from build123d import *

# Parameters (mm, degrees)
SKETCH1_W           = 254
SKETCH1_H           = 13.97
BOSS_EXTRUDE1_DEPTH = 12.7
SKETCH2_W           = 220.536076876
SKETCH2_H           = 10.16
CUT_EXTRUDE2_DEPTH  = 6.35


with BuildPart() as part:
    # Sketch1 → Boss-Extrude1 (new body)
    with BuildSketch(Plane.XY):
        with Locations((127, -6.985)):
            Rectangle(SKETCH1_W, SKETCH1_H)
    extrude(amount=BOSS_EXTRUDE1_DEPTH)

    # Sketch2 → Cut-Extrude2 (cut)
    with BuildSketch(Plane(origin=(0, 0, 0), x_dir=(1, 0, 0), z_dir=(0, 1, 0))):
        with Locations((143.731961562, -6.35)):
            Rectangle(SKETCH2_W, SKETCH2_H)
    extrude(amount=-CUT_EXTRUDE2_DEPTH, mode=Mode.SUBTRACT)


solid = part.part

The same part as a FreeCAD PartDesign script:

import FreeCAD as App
import Part
import Sketcher

V = App.Vector
Q = App.Units.Quantity


def add_polygon(sketch, points):
    """Adds a closed chain of lines whose ends are joined by coincident constraints."""
    first, n = sketch.GeometryCount, len(points)
    for a, b in zip(points, points[1:] + points[:1]):
        sketch.addGeometry(Part.LineSegment(App.Vector(*a, 0), App.Vector(*b, 0)), False)
    for i in range(n):
        sketch.addConstraint(Sketcher.Constraint("Coincident", first + i, 2, first + (i + 1) % n, 1))

doc = App.newDocument("Part")
body = doc.addObject("PartDesign::Body", "Body")

# Sketch on XY plane
sketch1 = doc.addObject("Sketcher::SketchObject", "Sketch")
body.addObject(sketch1)
sketch1.AttachmentSupport = (doc.XY_Plane, [""])
sketch1.MapMode = "FlatFace"
add_polygon(sketch1, [(0, 0), (0, -14), (254, -14), (254, 0)])  # lines 0-3
sketch1.addConstraint([
    Sketcher.Constraint("Vertical", 0),
    Sketcher.Constraint("Horizontal", 1),
    Sketcher.Constraint("Vertical", 2),
    Sketcher.Constraint("Horizontal", 3),
    Sketcher.Constraint("Coincident", 3, 2, -1, 1),
    Sketcher.Constraint("DistanceX", 1, 1, 1, 2, Q("10 in")),
    Sketcher.Constraint("DistanceY", 0, 2, 0, 1, Q("0.55 in")),
])
pad1 = doc.addObject("PartDesign::Pad", "Pad")
body.addObject(pad1)
pad1.Profile = sketch1
pad1.Length = Q("0.5 in")

# Sketch on XZ plane
sketch2 = doc.addObject("Sketcher::SketchObject", "Sketch001")
body.addObject(sketch2)
sketch2.AttachmentSupport = (doc.XZ_Plane, [""])
sketch2.MapMode = "FlatFace"
add_polygon(sketch2, [(33, 1), (33, 11), (254, 11), (254, 1)])  # lines 0-3
sketch2.addConstraint([
    Sketcher.Constraint("Vertical", 0),
    Sketcher.Constraint("Horizontal", 1),
    Sketcher.Constraint("Vertical", 2),
    Sketcher.Constraint("Horizontal", 3),
    Sketcher.Constraint("DistanceY", 0, 1, 0, 2, Q("0.4 in")),
    Sketcher.Constraint("DistanceX", -1, 1, 1, 2, Q("10 in")),
    Sketcher.Constraint("DistanceY", -1, 1, 0, 2, Q("0.45 in")),
    Sketcher.Constraint("DistanceX", 1, 1, 1, 2, Q("220.536077 mm")),
])
pocket1 = doc.addObject("PartDesign::Pocket", "Pocket")
body.addObject(pocket1)
pocket1.Profile = sketch2
pocket1.Length = Q("0.25 in")
pocket1.Reversed = True

doc.recompute()
